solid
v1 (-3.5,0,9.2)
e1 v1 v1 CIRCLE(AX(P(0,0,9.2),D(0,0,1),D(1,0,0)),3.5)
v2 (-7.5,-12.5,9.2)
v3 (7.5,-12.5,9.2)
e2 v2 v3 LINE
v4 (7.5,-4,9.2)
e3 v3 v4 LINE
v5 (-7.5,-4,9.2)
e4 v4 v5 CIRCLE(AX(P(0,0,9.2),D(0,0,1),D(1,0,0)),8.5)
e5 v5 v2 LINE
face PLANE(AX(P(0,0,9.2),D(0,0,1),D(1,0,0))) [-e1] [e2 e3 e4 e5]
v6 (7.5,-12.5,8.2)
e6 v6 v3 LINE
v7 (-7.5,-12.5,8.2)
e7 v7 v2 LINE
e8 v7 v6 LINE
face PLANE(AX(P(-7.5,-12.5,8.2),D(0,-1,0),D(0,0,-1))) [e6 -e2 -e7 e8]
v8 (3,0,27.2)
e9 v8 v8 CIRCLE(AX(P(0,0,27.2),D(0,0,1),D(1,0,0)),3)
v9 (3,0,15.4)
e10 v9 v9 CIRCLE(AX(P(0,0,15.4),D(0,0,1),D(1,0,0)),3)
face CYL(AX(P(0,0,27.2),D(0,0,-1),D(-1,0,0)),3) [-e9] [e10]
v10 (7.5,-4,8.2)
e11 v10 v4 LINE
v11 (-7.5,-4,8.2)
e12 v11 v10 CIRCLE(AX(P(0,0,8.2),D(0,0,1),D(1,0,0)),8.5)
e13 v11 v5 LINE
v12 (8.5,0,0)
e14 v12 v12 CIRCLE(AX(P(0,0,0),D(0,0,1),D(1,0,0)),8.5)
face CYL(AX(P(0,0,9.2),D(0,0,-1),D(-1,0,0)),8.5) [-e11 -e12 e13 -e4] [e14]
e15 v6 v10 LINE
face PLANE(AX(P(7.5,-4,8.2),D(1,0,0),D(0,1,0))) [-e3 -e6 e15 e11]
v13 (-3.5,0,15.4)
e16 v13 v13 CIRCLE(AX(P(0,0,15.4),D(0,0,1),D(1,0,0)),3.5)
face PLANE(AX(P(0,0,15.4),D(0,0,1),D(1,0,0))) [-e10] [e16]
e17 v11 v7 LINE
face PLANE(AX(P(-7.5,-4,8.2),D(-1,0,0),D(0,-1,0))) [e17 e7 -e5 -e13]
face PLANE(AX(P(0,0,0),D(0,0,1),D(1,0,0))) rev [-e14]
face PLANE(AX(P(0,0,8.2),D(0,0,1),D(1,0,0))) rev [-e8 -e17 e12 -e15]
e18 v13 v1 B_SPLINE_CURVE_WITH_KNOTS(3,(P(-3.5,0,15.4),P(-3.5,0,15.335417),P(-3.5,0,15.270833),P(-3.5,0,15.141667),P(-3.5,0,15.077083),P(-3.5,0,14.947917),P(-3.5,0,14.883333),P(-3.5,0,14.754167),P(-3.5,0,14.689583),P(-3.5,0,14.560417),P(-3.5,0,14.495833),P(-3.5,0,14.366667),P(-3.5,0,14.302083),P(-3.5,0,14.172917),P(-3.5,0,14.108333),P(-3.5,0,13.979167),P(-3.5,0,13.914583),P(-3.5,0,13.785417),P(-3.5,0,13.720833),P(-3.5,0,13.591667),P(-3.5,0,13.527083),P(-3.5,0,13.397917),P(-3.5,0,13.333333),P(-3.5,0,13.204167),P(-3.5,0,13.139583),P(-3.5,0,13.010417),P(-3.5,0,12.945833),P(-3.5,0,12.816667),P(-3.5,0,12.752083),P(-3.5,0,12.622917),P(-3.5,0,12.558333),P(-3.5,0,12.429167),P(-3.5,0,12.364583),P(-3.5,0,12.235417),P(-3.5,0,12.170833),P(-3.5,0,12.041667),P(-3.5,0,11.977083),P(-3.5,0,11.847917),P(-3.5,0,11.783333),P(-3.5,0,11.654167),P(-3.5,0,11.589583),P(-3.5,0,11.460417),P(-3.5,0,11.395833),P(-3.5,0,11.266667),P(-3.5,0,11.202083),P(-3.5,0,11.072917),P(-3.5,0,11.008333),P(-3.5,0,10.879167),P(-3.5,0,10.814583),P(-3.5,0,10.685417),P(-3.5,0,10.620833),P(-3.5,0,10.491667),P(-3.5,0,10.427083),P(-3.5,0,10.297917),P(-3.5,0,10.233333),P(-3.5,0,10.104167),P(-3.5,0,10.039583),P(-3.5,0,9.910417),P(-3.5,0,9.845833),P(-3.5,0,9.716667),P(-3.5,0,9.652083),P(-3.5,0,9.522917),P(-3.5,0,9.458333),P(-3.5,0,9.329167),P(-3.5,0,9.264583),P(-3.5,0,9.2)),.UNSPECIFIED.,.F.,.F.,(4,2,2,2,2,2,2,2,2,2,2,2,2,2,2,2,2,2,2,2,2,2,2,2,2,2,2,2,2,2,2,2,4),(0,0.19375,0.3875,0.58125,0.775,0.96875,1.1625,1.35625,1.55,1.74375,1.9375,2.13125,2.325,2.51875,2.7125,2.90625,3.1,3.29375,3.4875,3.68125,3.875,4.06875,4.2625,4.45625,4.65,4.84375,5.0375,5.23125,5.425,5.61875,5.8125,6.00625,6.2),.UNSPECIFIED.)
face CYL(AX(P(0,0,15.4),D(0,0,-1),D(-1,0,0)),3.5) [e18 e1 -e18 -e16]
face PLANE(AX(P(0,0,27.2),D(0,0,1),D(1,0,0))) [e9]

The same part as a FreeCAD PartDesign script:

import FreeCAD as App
import Part
import Sketcher
Q = App.Units.Quantity

doc = App.newDocument("Part")
params = doc.addObject("Spreadsheet::Sheet", "Params")
for row, (alias, value) in enumerate([
    ("sketch1_diameter", "17 mm"),
    ("pad1_length", "9.2 mm"),
    ("sketch2_width", "15 mm"),
    ("sketch2_height", "8.5 mm"),
    ("pad2_length", "1 mm"),
    ("sketch3_diameter", "7 mm"),
    ("pad3_length", "6.2 mm"),
    ("sketch4_diameter", "6 mm"),
    ("pad4_length", "11.8 mm"),
], start=1):
    params.set(f"A{row}", alias)
    params.set(f"B{row}", "=" + value)
    params.setAlias(f"B{row}", alias)

body = doc.addObject("PartDesign::Body", "Body")

# Sketch on XY plane
sketch1 = body.newObject("Sketcher::SketchObject", "Sketch")
sketch1.AttachmentSupport = (doc.getObject("XY_Plane"), [""])
sketch1.MapMode = "FlatFace"
sketch1.addGeometry(Part.Circle(App.Vector(0, 0, 0), App.Vector(0, 0, 1), 8), False)
sketch1.addConstraint(Sketcher.Constraint("Coincident", 0, 3, -1, 1))
sketch1.addConstraint(Sketcher.Constraint("Diameter", 0, Q("17 mm")))
sketch1.setExpression("Constraints[1]", "Params.sketch1_diameter")
pad1 = body.newObject("PartDesign::Pad", "Pad")
pad1.Profile = sketch1
pad1.setExpression("Length", "Params.pad1_length")

# Sketch on XY plane
sketch2 = body.newObject("Sketcher::SketchObject", "Sketch001")
sketch2.AttachmentSupport = (doc.getObject("XY_Plane"), [""])
sketch2.MapMode = "FlatFace"
sketch2.AttachmentOffset = App.Placement(App.Vector(0, 0, 9.2), App.Rotation())
sketch2.addGeometry(Part.LineSegment(App.Vector(-8, -4, 0), App.Vector(-8, -12, 0)), False)
sketch2.addGeometry(Part.LineSegment(App.Vector(-8, -12, 0), App.Vector(8, -12, 0)), False)
sketch2.addGeometry(Part.LineSegment(App.Vector(8, -12, 0), App.Vector(8, -4, 0)), False)
sketch2.addGeometry(Part.LineSegment(App.Vector(8, -4, 0), App.Vector(-8, -4, 0)), False)
sketch2.addConstraint(Sketcher.Constraint("Coincident", 0, 2, 1, 1))
sketch2.addConstraint(Sketcher.Constraint("Coincident", 1, 2, 2, 1))
sketch2.addConstraint(Sketcher.Constraint("Coincident", 2, 2, 3, 1))
sketch2.addConstraint(Sketcher.Constraint("Coincident", 3, 2, 0, 1))
sketch2.addConstraint(Sketcher.Constraint("Vertical", 0))
sketch2.addConstraint(Sketcher.Constraint("Horizontal", 1))
sketch2.addConstraint(Sketcher.Constraint("Vertical", 2))
sketch2.addConstraint(Sketcher.Constraint("Horizontal", 3))
sketch2.addConstraint(Sketcher.Constraint("DistanceX", 1, 1, 1, 2, Q("15 mm")))
sketch2.addConstraint(Sketcher.Constraint("DistanceY", 0, 2, 0, 1, Q("8.5 mm")))
sketch2.addConstraint(Sketcher.Constraint("DistanceY", 2, 2, -1, 1, Q("4 mm")))
sketch2.addConstraint(Sketcher.Constraint("DistanceX", 0, 2, -1, 1, Q("7.5 mm")))
sketch2.setExpression("Constraints[8]", "Params.sketch2_width")
sketch2.setExpression("Constraints[9]", "Params.sketch2_height")
pad2 = body.newObject("PartDesign::Pad", "Pad001")
pad2.Profile = sketch2
pad2.setExpression("Length", "Params.pad2_length")
pad2.Reversed = True

# Sketch on XY plane
sketch3 = body.newObject("Sketcher::SketchObject", "Sketch002")
sketch3.AttachmentSupport = (doc.getObject("XY_Plane"), [""])
sketch3.MapMode = "FlatFace"
sketch3.AttachmentOffset = App.Placement(App.Vector(0, 0, 9.2), App.Rotation())
sketch3.addGeometry(Part.Circle(App.Vector(0, 0, 0), App.Vector(0, 0, 1), 3.5), False)
sketch3.addConstraint(Sketcher.Constraint("Coincident", 0, 3, -1, 1))
sketch3.addConstraint(Sketcher.Constraint("Diameter", 0, Q("7 mm")))
sketch3.setExpression("Constraints[1]", "Params.sketch3_diameter")
pad3 = body.newObject("PartDesign::Pad", "Pad002")
pad3.Profile = sketch3
pad3.setExpression("Length", "Params.pad3_length")

# Sketch on XY plane
sketch4 = body.newObject("Sketcher::SketchObject", "Sketch003")
sketch4.AttachmentSupport = (doc.getObject("XY_Plane"), [""])
sketch4.MapMode = "FlatFace"
sketch4.AttachmentOffset = App.Placement(App.Vector(0, 0, 15.4), App.Rotation())
sketch4.addGeometry(Part.Circle(App.Vector(0, 0, 0), App.Vector(0, 0, 1), 3), False)
sketch4.addConstraint(Sketcher.Constraint("Coincident", 0, 3, -1, 1))
sketch4.addConstraint(Sketcher.Constraint("Diameter", 0, Q("6 mm")))
sketch4.setExpression("Constraints[1]", "Params.sketch4_diameter")
pad4 = body.newObject("PartDesign::Pad", "Pad003")
pad4.Profile = sketch4
pad4.setExpression("Length", "Params.pad4_length")

doc.recompute()
